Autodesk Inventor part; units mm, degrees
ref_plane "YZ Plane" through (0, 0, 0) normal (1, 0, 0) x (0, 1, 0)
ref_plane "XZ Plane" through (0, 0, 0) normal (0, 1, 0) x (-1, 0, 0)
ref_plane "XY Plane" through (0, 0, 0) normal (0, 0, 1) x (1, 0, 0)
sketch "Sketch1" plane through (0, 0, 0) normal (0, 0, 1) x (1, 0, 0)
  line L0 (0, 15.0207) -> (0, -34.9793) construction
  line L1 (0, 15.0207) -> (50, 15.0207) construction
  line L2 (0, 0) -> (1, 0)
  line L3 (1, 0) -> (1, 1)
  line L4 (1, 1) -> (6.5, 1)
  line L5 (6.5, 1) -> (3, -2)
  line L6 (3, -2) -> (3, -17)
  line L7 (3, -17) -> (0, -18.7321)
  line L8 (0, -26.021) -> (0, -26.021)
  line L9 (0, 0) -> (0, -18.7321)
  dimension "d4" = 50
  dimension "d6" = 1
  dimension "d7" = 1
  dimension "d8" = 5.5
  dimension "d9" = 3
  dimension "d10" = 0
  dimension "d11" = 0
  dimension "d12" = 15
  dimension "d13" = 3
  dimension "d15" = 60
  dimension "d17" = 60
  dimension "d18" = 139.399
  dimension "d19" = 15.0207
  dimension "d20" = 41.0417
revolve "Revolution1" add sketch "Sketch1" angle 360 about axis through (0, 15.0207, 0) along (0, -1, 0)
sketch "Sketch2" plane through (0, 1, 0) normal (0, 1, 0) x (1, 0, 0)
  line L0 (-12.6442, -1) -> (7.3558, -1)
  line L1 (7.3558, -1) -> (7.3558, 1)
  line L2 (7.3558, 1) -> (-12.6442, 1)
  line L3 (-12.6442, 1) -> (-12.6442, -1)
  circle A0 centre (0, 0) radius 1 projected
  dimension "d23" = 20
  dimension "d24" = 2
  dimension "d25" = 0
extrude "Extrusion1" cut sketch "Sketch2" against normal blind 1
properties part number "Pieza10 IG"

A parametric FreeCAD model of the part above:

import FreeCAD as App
import Part
import Sketcher
from FreeCAD import Vector
Q = App.Units.Quantity

doc = App.newDocument("Part")
params = doc.addObject("Spreadsheet::Sheet", "Params")
for row, (alias, value) in enumerate([
    ("sketch1_width", "1 mm"),
    ("sketch1_height", "15 mm"),
    ("sketch1_width2", "5.5 mm"),
    ("revolution_angle", "360 deg"),
    ("sketch2_width", "20 mm"),
    ("sketch2_height", "2 mm"),
    ("pocket1_length", "1 mm"),
], start=1):
    params.set(f"A{row}", alias)
    params.set(f"B{row}", "=" + value)
    params.setAlias(f"B{row}", alias)

body = doc.addObject("PartDesign::Body", "Body")

sketch1 = doc.addObject("Sketcher::SketchObject", "Sketch")
body.addObject(sketch1)
sketch1.AttachmentSupport = (doc.XY_Plane, [""])
sketch1.MapMode = "FlatFace"
sketch1.addGeometry([
    Part.LineSegment(Vector(1, 0, 0), Vector(0, 0, 0)),
    Part.LineSegment(Vector(0, 0, 0), Vector(0, -18.7, 0)),
    Part.LineSegment(Vector(0, -18.7, 0), Vector(3, -17, 0)),
    Part.LineSegment(Vector(3, -17, 0), Vector(3, -2, 0)),
    Part.LineSegment(Vector(3, -2, 0), Vector(6.5, 1, 0)),
    Part.LineSegment(Vector(6.5, 1, 0), Vector(1, 1, 0)),
    Part.LineSegment(Vector(1, 1, 0), Vector(1, 0, 0)),
], False)
sketch1.addConstraint([
    Sketcher.Constraint("Coincident", 0, 2, 1, 1),
    Sketcher.Constraint("Coincident", 1, 2, 2, 1),
    Sketcher.Constraint("Coincident", 2, 2, 3, 1),
    Sketcher.Constraint("Coincident", 3, 2, 4, 1),
    Sketcher.Constraint("Coincident", 4, 2, 5, 1),
    Sketcher.Constraint("Coincident", 5, 2, 6, 1),
    Sketcher.Constraint("Coincident", 6, 2, 0, 1),
    Sketcher.Constraint("Horizontal", 0),
    Sketcher.Constraint("Vertical", 1),
    Sketcher.Constraint("Vertical", 3),
    Sketcher.Constraint("Horizontal", 5),
    Sketcher.Constraint("Vertical", 6),
    Sketcher.Constraint("Coincident", 0, 2, -1, 1),
    Sketcher.Constraint("Equal", 0, 6),
    Sketcher.Constraint("DistanceX", 0, 2, 0, 1, Q("1 mm")),
    Sketcher.Constraint("DistanceY", 3, 1, 3, 2, Q("15 mm")),
    Sketcher.Constraint("DistanceX", 5, 2, 5, 1, Q("5.5 mm")),
    Sketcher.Constraint("DistanceX", -1, 1, 2, 2, Q("3 mm")),
    Sketcher.Constraint("DistanceY", 3, 2, 4, 2, Q("3 mm")),
    Sketcher.Constraint("Angle", 2, Q("30.0007 deg")),
])
sketch1.setExpression("Constraints[14]", "Params.sketch1_width")
sketch1.setExpression("Constraints[15]", "Params.sketch1_height")
sketch1.setExpression("Constraints[16]", "Params.sketch1_width2")
revolution = doc.addObject("PartDesign::Revolution", "Revolution")
body.addObject(revolution)
revolution.Profile = sketch1
revolution.ReferenceAxis = (sketch1, ["V_Axis"])
revolution.setExpression("Angle", "Params.revolution_angle")

sketch2 = doc.addObject("Sketcher::SketchObject", "Sketch001")
body.addObject(sketch2)
sketch2.AttachmentSupport = (doc.XZ_Plane, [""])
sketch2.MapMode = "FlatFace"
sketch2.AttachmentOffset = App.Placement(Vector(0, 0, -1), App.Rotation())
sketch2.addGeometry([
    Part.LineSegment(Vector(-12.6, -1, 0), Vector(-12.6, 1, 0)),
    Part.LineSegment(Vector(-12.6, 1, 0), Vector(7.4, 1, 0)),
    Part.LineSegment(Vector(7.4, 1, 0), Vector(7.4, -1, 0)),
    Part.LineSegment(Vector(7.4, -1, 0), Vector(-12.6, -1, 0)),
], False)
sketch2.addConstraint([
    Sketcher.Constraint("Coincident", 0, 2, 1, 1),
    Sketcher.Constraint("Coincident", 1, 2, 2, 1),
    Sketcher.Constraint("Coincident", 2, 2, 3, 1),
    Sketcher.Constraint("Coincident", 3, 2, 0, 1),
    Sketcher.Constraint("Vertical", 0),
    Sketcher.Constraint("Horizontal", 1),
    Sketcher.Constraint("Vertical", 2),
    Sketcher.Constraint("Horizontal", 3),
    Sketcher.Constraint("DistanceX", 1, 1, 1, 2, Q("20 mm")),
    Sketcher.Constraint("DistanceY", 0, 1, 0, 2, Q("2 mm")),
    Sketcher.Constraint("DistanceY", -1, 1, 0, 2, Q("1 mm")),
    Sketcher.Constraint("DistanceX", 0, 2, -1, 1, Q("12.6442 mm")),
])
sketch2.setExpression("Constraints[8]", "Params.sketch2_width")
sketch2.setExpression("Constraints[9]", "Params.sketch2_height")
pocket1 = doc.addObject("PartDesign::Pocket", "Pocket")
body.addObject(pocket1)
pocket1.Profile = sketch2
pocket1.setExpression("Length", "Params.pocket1_length")
pocket1.Reversed = True

doc.recompute()
